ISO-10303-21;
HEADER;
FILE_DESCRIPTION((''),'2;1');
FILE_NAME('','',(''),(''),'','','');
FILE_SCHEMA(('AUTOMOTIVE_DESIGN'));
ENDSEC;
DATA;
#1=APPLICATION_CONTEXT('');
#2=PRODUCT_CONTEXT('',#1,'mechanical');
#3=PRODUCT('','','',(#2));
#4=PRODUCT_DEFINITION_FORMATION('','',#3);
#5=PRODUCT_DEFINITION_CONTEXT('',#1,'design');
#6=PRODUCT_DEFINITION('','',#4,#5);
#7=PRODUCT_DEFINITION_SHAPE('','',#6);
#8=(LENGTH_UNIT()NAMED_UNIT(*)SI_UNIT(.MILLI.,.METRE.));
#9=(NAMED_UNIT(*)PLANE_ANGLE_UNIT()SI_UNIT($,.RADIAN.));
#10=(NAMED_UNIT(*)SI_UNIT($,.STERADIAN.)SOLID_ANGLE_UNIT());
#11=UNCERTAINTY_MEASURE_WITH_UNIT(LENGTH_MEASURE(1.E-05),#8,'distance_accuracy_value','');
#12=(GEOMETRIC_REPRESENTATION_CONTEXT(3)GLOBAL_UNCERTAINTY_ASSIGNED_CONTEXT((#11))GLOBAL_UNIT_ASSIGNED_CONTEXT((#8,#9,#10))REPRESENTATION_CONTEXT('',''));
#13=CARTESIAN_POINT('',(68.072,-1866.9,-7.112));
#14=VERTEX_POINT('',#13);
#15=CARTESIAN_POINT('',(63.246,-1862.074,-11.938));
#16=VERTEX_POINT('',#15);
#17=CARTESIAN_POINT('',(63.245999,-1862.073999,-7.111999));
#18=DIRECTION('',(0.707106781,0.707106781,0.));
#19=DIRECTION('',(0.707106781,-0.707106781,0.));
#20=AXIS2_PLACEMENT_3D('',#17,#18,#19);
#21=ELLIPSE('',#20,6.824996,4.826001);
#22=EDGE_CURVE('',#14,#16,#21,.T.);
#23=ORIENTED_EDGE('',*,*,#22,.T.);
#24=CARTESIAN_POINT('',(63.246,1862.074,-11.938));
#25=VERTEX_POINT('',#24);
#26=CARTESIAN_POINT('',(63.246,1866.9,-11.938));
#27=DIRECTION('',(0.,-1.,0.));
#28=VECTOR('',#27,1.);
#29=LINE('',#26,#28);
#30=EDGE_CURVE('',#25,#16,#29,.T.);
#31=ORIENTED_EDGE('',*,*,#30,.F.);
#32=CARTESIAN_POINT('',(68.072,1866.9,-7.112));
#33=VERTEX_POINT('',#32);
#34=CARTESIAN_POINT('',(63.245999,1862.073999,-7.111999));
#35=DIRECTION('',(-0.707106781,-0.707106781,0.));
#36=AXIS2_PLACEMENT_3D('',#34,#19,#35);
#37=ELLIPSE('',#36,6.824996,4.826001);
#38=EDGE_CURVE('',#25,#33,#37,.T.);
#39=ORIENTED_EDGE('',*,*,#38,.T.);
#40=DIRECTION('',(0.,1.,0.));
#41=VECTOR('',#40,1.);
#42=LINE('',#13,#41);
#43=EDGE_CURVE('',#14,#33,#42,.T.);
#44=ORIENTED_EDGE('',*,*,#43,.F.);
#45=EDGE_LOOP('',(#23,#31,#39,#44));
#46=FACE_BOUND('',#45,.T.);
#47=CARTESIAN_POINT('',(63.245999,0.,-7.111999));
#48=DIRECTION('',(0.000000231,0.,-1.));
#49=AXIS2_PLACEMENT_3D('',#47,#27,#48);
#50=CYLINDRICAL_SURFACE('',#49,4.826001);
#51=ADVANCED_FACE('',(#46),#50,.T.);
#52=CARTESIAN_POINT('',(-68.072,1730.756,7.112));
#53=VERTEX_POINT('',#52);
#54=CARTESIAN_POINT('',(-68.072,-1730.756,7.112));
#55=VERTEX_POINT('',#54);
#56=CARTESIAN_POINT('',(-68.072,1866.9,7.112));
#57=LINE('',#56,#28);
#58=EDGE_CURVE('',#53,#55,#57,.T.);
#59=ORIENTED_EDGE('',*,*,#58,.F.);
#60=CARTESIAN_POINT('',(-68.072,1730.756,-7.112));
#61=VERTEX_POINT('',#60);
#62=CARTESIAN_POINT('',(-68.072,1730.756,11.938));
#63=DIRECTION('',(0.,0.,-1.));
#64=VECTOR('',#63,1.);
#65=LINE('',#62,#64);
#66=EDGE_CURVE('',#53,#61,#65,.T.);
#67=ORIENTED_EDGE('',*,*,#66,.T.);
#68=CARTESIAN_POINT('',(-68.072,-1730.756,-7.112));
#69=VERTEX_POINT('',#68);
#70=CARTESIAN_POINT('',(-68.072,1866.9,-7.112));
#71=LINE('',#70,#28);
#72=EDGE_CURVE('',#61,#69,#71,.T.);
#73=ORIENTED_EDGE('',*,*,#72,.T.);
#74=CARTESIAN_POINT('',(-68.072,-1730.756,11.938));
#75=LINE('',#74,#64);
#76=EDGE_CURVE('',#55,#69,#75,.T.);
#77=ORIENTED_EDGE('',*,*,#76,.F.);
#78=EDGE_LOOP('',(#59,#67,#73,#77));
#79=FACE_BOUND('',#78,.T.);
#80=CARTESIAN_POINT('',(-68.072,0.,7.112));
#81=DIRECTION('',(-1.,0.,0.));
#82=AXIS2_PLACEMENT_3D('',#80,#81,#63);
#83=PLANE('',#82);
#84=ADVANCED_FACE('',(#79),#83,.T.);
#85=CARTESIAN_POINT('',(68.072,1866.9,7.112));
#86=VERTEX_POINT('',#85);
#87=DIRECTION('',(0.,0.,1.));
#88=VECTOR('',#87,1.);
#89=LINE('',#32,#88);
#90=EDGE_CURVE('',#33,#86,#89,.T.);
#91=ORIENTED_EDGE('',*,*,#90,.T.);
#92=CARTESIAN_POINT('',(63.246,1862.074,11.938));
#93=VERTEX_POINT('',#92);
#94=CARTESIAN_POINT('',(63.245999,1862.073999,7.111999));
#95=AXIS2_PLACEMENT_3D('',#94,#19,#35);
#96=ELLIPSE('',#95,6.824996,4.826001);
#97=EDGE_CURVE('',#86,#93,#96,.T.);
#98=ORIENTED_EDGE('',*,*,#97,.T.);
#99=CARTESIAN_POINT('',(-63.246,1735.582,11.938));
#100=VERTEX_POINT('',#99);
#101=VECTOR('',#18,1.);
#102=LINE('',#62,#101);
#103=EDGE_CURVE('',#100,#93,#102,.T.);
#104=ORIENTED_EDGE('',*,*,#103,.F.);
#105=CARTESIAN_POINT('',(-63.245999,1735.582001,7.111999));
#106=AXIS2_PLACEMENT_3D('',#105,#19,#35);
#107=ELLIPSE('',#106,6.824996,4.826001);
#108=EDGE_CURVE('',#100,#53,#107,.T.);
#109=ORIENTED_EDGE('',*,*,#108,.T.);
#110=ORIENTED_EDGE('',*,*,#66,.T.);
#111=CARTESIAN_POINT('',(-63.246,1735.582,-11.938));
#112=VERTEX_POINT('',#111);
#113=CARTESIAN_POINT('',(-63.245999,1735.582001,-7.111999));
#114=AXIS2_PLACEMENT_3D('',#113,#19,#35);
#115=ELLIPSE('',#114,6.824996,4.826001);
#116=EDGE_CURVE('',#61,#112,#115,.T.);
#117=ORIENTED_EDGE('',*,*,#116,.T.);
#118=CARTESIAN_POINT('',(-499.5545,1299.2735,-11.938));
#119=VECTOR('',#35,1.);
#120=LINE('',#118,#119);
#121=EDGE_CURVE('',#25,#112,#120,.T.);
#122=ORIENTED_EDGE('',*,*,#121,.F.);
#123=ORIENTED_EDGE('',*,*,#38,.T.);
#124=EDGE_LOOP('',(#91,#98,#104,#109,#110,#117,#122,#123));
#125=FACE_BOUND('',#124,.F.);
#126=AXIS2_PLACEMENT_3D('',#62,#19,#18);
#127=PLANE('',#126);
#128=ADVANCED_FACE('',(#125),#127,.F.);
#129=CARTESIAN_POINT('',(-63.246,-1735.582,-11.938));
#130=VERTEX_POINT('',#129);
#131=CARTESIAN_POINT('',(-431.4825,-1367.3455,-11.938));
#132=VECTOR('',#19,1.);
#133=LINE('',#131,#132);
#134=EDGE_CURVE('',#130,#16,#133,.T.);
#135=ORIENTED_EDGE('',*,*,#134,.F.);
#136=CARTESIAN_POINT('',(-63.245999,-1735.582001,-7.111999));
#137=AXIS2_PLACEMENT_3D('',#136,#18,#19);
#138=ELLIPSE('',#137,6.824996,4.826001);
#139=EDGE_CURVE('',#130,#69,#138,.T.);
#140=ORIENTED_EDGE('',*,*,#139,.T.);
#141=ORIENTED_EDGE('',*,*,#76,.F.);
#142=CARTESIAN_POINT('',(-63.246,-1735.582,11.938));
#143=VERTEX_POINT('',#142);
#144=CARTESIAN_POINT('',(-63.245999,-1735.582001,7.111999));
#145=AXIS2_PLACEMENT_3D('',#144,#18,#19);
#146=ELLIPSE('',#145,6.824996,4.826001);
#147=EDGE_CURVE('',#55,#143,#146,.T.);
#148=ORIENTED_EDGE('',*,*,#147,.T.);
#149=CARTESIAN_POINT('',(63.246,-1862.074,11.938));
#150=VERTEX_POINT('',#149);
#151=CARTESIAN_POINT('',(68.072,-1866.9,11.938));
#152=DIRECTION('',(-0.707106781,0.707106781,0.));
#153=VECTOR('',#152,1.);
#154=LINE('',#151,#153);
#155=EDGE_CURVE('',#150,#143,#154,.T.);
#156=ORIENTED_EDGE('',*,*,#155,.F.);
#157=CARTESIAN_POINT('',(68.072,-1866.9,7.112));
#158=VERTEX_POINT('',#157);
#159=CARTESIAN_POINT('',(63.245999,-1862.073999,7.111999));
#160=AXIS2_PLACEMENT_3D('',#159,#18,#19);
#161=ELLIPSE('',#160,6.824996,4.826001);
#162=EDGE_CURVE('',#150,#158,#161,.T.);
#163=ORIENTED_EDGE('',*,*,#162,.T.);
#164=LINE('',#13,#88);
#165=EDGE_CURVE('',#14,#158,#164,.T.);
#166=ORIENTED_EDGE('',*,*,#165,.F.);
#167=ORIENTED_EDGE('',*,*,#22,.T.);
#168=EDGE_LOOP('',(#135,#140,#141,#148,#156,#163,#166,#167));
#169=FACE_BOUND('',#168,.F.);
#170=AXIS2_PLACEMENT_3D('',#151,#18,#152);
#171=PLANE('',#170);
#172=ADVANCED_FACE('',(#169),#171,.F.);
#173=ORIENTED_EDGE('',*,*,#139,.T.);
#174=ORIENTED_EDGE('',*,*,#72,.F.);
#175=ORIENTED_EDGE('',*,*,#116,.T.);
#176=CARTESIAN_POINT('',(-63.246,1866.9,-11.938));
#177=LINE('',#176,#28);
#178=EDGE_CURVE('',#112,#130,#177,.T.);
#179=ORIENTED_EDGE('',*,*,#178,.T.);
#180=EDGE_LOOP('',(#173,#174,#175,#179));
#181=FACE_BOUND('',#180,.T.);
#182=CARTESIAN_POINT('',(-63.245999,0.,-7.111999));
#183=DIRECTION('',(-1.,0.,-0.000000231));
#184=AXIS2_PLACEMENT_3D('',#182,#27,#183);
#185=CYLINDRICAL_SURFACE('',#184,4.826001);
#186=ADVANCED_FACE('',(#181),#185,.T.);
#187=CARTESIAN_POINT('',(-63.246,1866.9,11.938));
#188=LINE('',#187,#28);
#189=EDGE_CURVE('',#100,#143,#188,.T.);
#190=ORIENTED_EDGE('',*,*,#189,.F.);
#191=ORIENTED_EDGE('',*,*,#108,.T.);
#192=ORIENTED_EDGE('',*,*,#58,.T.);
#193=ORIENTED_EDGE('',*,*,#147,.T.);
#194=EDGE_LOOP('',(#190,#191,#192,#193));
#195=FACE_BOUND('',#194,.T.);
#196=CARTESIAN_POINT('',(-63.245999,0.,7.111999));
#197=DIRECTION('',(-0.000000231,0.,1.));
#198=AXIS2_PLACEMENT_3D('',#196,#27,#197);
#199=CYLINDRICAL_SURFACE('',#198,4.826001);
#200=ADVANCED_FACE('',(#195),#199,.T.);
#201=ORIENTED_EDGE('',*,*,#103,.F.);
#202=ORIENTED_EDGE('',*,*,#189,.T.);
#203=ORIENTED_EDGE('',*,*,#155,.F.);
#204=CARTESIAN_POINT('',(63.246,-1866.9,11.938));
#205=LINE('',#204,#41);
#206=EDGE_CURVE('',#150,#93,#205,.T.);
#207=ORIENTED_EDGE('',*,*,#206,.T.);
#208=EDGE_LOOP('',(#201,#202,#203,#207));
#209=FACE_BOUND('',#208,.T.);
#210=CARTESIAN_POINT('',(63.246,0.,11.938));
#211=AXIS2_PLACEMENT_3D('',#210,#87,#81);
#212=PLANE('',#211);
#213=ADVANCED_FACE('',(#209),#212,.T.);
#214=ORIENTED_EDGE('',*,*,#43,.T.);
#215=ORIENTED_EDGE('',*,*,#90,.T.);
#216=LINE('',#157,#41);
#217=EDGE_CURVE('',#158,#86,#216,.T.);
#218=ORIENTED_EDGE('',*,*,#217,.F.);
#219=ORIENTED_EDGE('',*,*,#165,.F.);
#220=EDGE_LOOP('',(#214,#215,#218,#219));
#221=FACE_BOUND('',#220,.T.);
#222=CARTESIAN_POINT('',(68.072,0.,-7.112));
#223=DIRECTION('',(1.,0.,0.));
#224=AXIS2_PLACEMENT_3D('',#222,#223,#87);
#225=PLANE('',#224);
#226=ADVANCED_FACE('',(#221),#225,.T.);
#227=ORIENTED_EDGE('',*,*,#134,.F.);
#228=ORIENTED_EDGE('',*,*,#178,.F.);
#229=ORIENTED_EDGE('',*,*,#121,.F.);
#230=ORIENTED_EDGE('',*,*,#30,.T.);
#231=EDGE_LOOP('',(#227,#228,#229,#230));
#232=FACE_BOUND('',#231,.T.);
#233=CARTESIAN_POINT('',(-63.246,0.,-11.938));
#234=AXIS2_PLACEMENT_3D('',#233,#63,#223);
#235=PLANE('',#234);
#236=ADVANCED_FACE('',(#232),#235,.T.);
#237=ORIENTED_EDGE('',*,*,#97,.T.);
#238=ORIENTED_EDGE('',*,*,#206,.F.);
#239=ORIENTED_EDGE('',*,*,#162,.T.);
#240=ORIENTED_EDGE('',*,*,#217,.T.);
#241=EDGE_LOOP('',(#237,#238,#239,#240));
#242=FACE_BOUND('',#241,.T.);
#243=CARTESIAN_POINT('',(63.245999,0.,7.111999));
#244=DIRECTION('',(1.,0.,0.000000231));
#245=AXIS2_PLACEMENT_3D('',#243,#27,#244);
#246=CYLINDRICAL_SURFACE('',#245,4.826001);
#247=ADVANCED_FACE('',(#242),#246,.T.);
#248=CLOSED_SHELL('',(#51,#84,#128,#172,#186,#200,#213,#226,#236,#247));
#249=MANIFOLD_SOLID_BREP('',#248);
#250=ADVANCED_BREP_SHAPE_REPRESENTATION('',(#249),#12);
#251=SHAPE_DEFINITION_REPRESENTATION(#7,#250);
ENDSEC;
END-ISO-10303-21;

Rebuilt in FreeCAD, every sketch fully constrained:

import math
import FreeCAD as App
import Part
import Sketcher
Q = App.Units.Quantity


def add_polygon(sketch, points):
    """Adds a closed chain of lines whose ends are joined by coincident constraints."""
    first, n = sketch.GeometryCount, len(points)
    for a, b in zip(points, points[1:] + points[:1]):
        sketch.addGeometry(Part.LineSegment(App.Vector(*a, 0), App.Vector(*b, 0)), False)
    for i in range(n):
        sketch.addConstraint(Sketcher.Constraint("Coincident", first + i, 2, first + (i + 1) % n, 1))

doc = App.newDocument("Part")
body = doc.addObject("PartDesign::Body", "Body")

# Sketch on XZ plane
sketch1 = body.newObject("Sketcher::SketchObject", "Sketch")
sketch1.AttachmentSupport = (doc.getObject("XZ_Plane"), [""])
sketch1.MapMode = "FlatFace"
sketch1.addGeometry(Part.LineSegment(App.Vector(63.2, 11.9, 0), App.Vector(-63.2, 11.9, 0)), False)
sketch1.addGeometry(Part.ArcOfCircle(Part.Circle(App.Vector(-63.2, 7.1, 0), App.Vector(0, 0, 1), 4.8), math.radians(90), math.radians(180)), False)
sketch1.addGeometry(Part.LineSegment(App.Vector(-68.1, 7.1, 0), App.Vector(-68.1, -7.1, 0)), False)
sketch1.addGeometry(Part.ArcOfCircle(Part.Circle(App.Vector(-63.2, -7.1, 0), App.Vector(0, 0, 1), 4.8), math.radians(-180), math.radians(-90)), False)
sketch1.addGeometry(Part.LineSegment(App.Vector(-63.2, -11.9, 0), App.Vector(63.2, -11.9, 0)), False)
sketch1.addGeometry(Part.ArcOfCircle(Part.Circle(App.Vector(63.2, -7.1, 0), App.Vector(0, 0, 1), 4.8), math.radians(-90), math.radians(0)), False)
sketch1.addGeometry(Part.LineSegment(App.Vector(68.1, -7.1, 0), App.Vector(68.1, 7.1, 0)), False)
sketch1.addGeometry(Part.ArcOfCircle(Part.Circle(App.Vector(63.2, 7.1, 0), App.Vector(0, 0, 1), 4.8), math.radians(0), math.radians(90)), False)
sketch1.addConstraint(Sketcher.Constraint("Tangent", 0, 2, 1, 1))
sketch1.addConstraint(Sketcher.Constraint("Tangent", 1, 2, 2, 1))
sketch1.addConstraint(Sketcher.Constraint("Tangent", 2, 2, 3, 1))
sketch1.addConstraint(Sketcher.Constraint("Tangent", 3, 2, 4, 1))
sketch1.addConstraint(Sketcher.Constraint("Tangent", 4, 2, 5, 1))
sketch1.addConstraint(Sketcher.Constraint("Tangent", 5, 2, 6, 1))
sketch1.addConstraint(Sketcher.Constraint("Tangent", 6, 2, 7, 1))
sketch1.addConstraint(Sketcher.Constraint("Tangent", 7, 2, 0, 1))
sketch1.addConstraint(Sketcher.Constraint("Horizontal", 0))
sketch1.addConstraint(Sketcher.Constraint("Vertical", 2))
sketch1.addConstraint(Sketcher.Constraint("Horizontal", 4))
sketch1.addConstraint(Sketcher.Constraint("Vertical", 6))
sketch1.addConstraint(Sketcher.Constraint("Equal", 1, 3))
sketch1.addConstraint(Sketcher.Constraint("Equal", 3, 5))
sketch1.addConstraint(Sketcher.Constraint("Equal", 5, 7))
sketch1.addConstraint(Sketcher.Constraint("Symmetric", 1, 3, 5, 3, -1, 1))
sketch1.addConstraint(Sketcher.Constraint("Radius", 1, Q("0.19 in")))
sketch1.addConstraint(Sketcher.Constraint("DistanceX", 0, 2, 0, 1, Q("4.98 in")))
sketch1.addConstraint(Sketcher.Constraint("DistanceY", 2, 2, 2, 1, Q("0.56 in")))
pad1 = body.newObject("PartDesign::Pad", "Pad")
pad1.Profile = sketch1
pad1.Length = Q("147 in")
pad1.Midplane = True

# Sketch on XY plane
sketch2 = body.newObject("Sketcher::SketchObject", "Sketch001")
sketch2.AttachmentSupport = (doc.getObject("XY_Plane"), [""])
sketch2.MapMode = "FlatFace"
sketch2.AttachmentOffset = App.Placement(App.Vector(0, 0, 0.47 * 25.4), App.Rotation())
add_polygon(sketch2, [(68, -1867), (-68, -1731), (-68, -1867)])  # lines 0-2
add_polygon(sketch2, [(-68, 1867), (-68, 1731), (68, 1867)])  # lines 3-5
sketch2.addConstraint(Sketcher.Constraint("Vertical", 1))
sketch2.addConstraint(Sketcher.Constraint("Horizontal", 2))
sketch2.addConstraint(Sketcher.Constraint("Vertical", 3))
sketch2.addConstraint(Sketcher.Constraint("Horizontal", 5))
sketch2.addConstraint(Sketcher.Constraint("Symmetric", 1, 2, 4, 2, -1, 1))
sketch2.addConstraint(Sketcher.Constraint("Symmetric", 0, 2, 3, 2, -1))
sketch2.addConstraint(Sketcher.Constraint("Perpendicular", 0, 4))
sketch2.addConstraint(Sketcher.Constraint("Vertical", 2, 2, 4, 2))
sketch2.addConstraint(Sketcher.Constraint("DistanceY", 2, 2, 4, 2, Q("147 in")))
sketch2.addConstraint(Sketcher.Constraint("DistanceX", 2, 1, 2, 2, Q("5.36 in")))
pocket1 = body.newObject("PartDesign::Pocket", "Pocket")
pocket1.Profile = sketch2
pocket1.Type = "ThroughAll"

doc.recompute()
